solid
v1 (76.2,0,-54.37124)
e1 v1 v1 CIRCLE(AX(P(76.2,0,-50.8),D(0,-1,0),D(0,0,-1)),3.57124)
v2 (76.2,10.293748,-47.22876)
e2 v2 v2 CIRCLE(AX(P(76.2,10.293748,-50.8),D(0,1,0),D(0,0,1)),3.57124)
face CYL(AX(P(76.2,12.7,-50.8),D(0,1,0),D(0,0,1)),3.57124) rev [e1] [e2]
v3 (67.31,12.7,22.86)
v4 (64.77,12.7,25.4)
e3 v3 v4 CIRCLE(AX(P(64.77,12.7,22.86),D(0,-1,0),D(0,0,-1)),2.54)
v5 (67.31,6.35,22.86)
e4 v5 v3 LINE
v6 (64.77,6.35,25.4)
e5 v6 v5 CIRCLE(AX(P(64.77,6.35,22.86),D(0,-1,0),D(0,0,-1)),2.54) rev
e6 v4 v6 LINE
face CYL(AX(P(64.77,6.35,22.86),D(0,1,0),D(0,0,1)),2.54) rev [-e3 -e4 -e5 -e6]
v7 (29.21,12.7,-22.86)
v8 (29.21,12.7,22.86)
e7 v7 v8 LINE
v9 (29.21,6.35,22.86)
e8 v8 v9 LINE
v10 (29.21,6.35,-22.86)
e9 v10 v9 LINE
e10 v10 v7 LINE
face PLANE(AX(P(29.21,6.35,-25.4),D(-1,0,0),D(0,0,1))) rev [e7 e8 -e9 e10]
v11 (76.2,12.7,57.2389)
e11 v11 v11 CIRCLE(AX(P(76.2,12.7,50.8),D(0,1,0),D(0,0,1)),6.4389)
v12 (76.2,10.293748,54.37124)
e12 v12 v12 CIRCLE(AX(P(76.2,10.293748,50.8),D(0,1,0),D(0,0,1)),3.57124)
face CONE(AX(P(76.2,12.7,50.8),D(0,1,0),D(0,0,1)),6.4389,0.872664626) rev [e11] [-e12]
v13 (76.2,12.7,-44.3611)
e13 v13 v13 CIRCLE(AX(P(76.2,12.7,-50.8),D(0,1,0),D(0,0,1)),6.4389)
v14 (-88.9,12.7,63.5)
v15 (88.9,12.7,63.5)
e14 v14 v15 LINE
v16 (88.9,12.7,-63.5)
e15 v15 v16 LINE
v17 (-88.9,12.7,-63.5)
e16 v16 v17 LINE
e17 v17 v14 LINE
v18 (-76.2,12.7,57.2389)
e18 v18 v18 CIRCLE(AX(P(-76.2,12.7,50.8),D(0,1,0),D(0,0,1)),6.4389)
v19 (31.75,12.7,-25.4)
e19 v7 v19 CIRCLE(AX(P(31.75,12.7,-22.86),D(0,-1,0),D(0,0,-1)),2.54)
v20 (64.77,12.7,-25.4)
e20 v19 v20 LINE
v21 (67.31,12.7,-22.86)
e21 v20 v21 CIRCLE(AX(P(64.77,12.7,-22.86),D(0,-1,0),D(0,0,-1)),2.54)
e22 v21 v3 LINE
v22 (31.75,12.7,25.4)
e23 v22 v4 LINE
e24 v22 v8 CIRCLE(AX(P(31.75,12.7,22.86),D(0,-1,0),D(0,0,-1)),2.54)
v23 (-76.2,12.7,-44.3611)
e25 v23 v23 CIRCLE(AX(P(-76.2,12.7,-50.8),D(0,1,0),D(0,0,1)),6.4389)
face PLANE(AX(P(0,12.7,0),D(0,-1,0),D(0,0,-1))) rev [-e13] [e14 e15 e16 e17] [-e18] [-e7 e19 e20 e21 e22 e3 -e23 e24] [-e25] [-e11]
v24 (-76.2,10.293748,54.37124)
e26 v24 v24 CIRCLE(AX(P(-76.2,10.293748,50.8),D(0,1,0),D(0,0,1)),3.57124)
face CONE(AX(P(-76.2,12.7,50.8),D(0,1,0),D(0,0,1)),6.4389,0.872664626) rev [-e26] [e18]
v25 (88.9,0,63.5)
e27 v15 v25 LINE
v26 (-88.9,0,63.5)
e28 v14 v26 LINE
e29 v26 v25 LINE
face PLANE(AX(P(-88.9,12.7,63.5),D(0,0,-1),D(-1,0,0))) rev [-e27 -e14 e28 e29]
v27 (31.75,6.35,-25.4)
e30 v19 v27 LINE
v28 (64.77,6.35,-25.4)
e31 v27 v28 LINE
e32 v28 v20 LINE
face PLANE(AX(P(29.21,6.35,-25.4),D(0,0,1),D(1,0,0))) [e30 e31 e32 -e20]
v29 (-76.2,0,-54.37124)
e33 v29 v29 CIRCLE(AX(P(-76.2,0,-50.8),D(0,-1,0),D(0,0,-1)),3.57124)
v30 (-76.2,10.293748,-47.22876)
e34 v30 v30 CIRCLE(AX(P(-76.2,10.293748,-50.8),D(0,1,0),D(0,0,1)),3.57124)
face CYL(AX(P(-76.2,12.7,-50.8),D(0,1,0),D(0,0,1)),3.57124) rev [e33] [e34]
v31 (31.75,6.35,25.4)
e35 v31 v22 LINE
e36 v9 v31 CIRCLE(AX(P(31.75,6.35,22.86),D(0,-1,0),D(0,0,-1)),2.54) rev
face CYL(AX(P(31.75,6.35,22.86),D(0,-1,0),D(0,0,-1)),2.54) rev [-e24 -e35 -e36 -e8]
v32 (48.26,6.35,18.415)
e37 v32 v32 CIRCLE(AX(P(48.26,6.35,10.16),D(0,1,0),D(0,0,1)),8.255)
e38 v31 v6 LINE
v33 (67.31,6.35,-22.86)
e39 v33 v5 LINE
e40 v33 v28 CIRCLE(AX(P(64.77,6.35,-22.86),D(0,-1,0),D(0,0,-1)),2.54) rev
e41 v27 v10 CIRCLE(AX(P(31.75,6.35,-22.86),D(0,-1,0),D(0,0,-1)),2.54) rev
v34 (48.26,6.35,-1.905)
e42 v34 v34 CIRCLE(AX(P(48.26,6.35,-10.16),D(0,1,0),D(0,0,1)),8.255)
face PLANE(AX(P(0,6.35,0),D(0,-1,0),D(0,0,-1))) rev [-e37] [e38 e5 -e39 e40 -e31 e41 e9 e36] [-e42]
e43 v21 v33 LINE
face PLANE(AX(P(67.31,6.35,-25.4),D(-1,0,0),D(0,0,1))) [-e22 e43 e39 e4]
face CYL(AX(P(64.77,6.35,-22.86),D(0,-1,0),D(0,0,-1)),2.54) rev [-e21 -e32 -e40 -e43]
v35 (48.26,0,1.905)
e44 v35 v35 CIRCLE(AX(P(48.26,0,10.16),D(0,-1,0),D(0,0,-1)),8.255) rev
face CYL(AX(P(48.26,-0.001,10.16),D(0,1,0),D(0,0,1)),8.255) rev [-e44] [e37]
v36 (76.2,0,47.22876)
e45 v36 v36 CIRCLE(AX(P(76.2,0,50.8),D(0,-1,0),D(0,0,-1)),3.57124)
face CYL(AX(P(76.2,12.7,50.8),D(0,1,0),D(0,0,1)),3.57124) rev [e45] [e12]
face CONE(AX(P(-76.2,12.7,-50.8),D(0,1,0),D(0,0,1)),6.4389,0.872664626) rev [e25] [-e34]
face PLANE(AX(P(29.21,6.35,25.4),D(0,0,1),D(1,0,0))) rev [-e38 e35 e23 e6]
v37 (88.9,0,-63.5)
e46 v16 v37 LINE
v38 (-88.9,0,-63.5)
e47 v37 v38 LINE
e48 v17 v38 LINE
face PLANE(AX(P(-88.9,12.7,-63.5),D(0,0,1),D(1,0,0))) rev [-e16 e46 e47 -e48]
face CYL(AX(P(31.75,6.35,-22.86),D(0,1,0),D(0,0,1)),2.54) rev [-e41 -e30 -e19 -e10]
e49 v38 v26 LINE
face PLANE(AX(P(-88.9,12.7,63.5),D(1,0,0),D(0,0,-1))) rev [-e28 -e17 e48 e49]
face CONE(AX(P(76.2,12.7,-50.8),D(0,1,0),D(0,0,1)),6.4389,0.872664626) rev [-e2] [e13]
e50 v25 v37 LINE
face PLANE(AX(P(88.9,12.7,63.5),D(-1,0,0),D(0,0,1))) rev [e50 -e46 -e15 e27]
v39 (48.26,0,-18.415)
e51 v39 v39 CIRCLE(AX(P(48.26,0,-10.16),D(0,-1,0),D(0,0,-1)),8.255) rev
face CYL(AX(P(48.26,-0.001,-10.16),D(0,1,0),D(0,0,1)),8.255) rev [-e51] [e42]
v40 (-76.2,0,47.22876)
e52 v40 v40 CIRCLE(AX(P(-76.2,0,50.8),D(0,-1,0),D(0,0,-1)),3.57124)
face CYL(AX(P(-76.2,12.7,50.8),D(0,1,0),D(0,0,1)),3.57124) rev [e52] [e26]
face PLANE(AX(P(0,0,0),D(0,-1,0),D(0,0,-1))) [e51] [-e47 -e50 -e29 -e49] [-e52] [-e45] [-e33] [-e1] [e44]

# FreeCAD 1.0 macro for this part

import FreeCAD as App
import Part
import Sketcher
from FreeCAD import Vector
Q = App.Units.Quantity


def edges_at(feature, points):
    """Names of the edges that pass closest to the given points."""
    edges = feature.Shape.Edges
    near = lambda p: min(range(len(edges)), key=lambda i: edges[i].distToShape(Part.Vertex(*p))[0])
    return sorted({f"Edge{near(p) + 1}" for p in points})

doc = App.newDocument("Part")
body = doc.addObject("PartDesign::Body", "Body")

# Sketch on XZ plane
sketch1 = body.newObject("Sketcher::SketchObject", "Sketch")
sketch1.AttachmentSupport = (doc.getObject("XZ_Plane"), [""])
sketch1.MapMode = "FlatFace"
sketch1.addGeometry([
    Part.LineSegment(Vector(-88.9, -63.5, 0), Vector(-88.9, 63.5, 0)),
    Part.LineSegment(Vector(-88.9, 63.5, 0), Vector(88.9, 63.5, 0)),
    Part.LineSegment(Vector(88.9, 63.5, 0), Vector(88.9, -63.5, 0)),
    Part.LineSegment(Vector(88.9, -63.5, 0), Vector(-88.9, -63.5, 0)),
], False)
sketch1.addConstraint([
    Sketcher.Constraint("Coincident", 0, 2, 1, 1),
    Sketcher.Constraint("Coincident", 1, 2, 2, 1),
    Sketcher.Constraint("Coincident", 2, 2, 3, 1),
    Sketcher.Constraint("Coincident", 3, 2, 0, 1),
    Sketcher.Constraint("Vertical", 0),
    Sketcher.Constraint("Horizontal", 1),
    Sketcher.Constraint("Vertical", 2),
    Sketcher.Constraint("Horizontal", 3),
    Sketcher.Constraint("Symmetric", 0, 2, 2, 2, -1, 1),
    Sketcher.Constraint("DistanceX", 1, 1, 1, 2, Q("7 in")),
    Sketcher.Constraint("DistanceY", 0, 1, 0, 2, Q("5 in")),
])
pad1 = body.newObject("PartDesign::Pad", "Pad")
pad1.Profile = sketch1
pad1.Length = Q("0.5 in")
pad1.Reversed = True

# Sketch on XZ plane
sketch2 = body.newObject("Sketcher::SketchObject", "Sketch001")
sketch2.AttachmentSupport = (doc.getObject("XZ_Plane"), [""])
sketch2.MapMode = "FlatFace"
sketch2.AttachmentOffset = App.Placement(Vector(0, 0, -0.5 * 25.4), App.Rotation())
sketch2.addGeometry([
    Part.Circle(Vector(-76.2, 50.8, 0), Vector(0, 0, 1), 3.57124),
    Part.Circle(Vector(76.2, 50.8, 0), Vector(0, 0, 1), 3.57124),
    Part.Circle(Vector(76.2, -50.8, 0), Vector(0, 0, 1), 3.57124),
    Part.Circle(Vector(-76.2, -50.8, 0), Vector(0, 0, 1), 3.57124),
], False)
sketch2.addConstraint([
    Sketcher.Constraint("Equal", 0, 1),
    Sketcher.Constraint("Equal", 1, 2),
    Sketcher.Constraint("Equal", 2, 3),
    Sketcher.Constraint("Symmetric", 0, 3, 2, 3, -1, 1),
    Sketcher.Constraint("Symmetric", 1, 3, 3, 3, -1, 1),
    Sketcher.Constraint("Symmetric", 0, 3, 1, 3, -2),
    Sketcher.Constraint("DistanceX", 0, 3, -1, 1, Q("3 in")),
    Sketcher.Constraint("DistanceY", -1, 1, 0, 3, Q("2 in")),
    Sketcher.Constraint("Diameter", 0, Q("0.2812 in")),
])
doc.recompute()
hole = body.newObject("PartDesign::Hole", "Hole")
hole.Profile = sketch2
hole.ThreadType = "None"
hole.Diameter = Q("0.2812 in")
hole.DepthType = "ThroughAll"
hole.HoleCutType = "Countersink"
hole.HoleCutDiameter = Q("0.507 in")
hole.HoleCutCountersinkAngle = 100
hole.Reversed = True

# Sketch on XZ plane
sketch3 = body.newObject("Sketcher::SketchObject", "Sketch002")
sketch3.AttachmentSupport = (doc.getObject("XZ_Plane"), [""])
sketch3.MapMode = "FlatFace"
sketch3.AttachmentOffset = App.Placement(Vector(0, 0, -0.5 * 25.4), App.Rotation())
sketch3.addGeometry([
    Part.LineSegment(Vector(29.21, -25.4, 0), Vector(29.21, 25.4, 0)),
    Part.LineSegment(Vector(29.21, 25.4, 0), Vector(67.31, 25.4, 0)),
    Part.LineSegment(Vector(67.31, 25.4, 0), Vector(67.31, -25.4, 0)),
    Part.LineSegment(Vector(67.31, -25.4, 0), Vector(29.21, -25.4, 0)),
], False)
sketch3.addConstraint([
    Sketcher.Constraint("Coincident", 0, 2, 1, 1),
    Sketcher.Constraint("Coincident", 1, 2, 2, 1),
    Sketcher.Constraint("Coincident", 2, 2, 3, 1),
    Sketcher.Constraint("Coincident", 3, 2, 0, 1),
    Sketcher.Constraint("Vertical", 0),
    Sketcher.Constraint("Horizontal", 1),
    Sketcher.Constraint("Vertical", 2),
    Sketcher.Constraint("Horizontal", 3),
    Sketcher.Constraint("DistanceY", 0, 1, 0, 2, Q("2 in")),
    Sketcher.Constraint("DistanceX", 1, 1, 1, 2, Q("1.5 in")),
    Sketcher.Constraint("DistanceY", -1, 1, 0, 2, Q("1 in")),
    Sketcher.Constraint("DistanceX", -1, 1, 0, 2, Q("1.15 in")),
])
pocket1 = body.newObject("PartDesign::Pocket", "Pocket")
pocket1.Profile = sketch3
pocket1.Length = Q("0.25 in")
pocket1.Reversed = True

# Sketch on XZ plane
sketch4 = body.newObject("Sketcher::SketchObject", "Sketch003")
sketch4.AttachmentSupport = (doc.getObject("XZ_Plane"), [""])
sketch4.MapMode = "FlatFace"
sketch4.AttachmentOffset = App.Placement(Vector(0, 0, -0.25 * 25.4), App.Rotation())
sketch4.addGeometry(Part.Circle(Vector(48.26, -10.16, 0), Vector(0, 0, 1), 8.255), False)
sketch4.addConstraint([
    Sketcher.Constraint("Diameter", 0, Q("0.65 in")),
    Sketcher.Constraint("DistanceX", -1, 1, 0, 3, Q("1.9 in")),
    Sketcher.Constraint("DistanceY", 0, 3, -1, 1, Q("0.4 in")),
])
pocket2 = body.newObject("PartDesign::Pocket", "Pocket001")
pocket2.Profile = sketch4
pocket2.Type = "UpToFirst"
pocket2.Reversed = True

# Sketch on XZ plane
sketch5 = body.newObject("Sketcher::SketchObject", "Sketch004")
sketch5.AttachmentSupport = (doc.getObject("XZ_Plane"), [""])
sketch5.MapMode = "FlatFace"
sketch5.AttachmentOffset = App.Placement(Vector(0, 0, -0.25 * 25.4), App.Rotation())
sketch5.addGeometry(Part.Circle(Vector(48.26, 10.16, 0), Vector(0, 0, 1), 8.255), False)
sketch5.addConstraint([
    Sketcher.Constraint("Diameter", 0, Q("0.65 in")),
    Sketcher.Constraint("DistanceX", -1, 1, 0, 3, Q("1.9 in")),
    Sketcher.Constraint("DistanceY", -1, 1, 0, 3, Q("0.4 in")),
])
pocket3 = body.newObject("PartDesign::Pocket", "Pocket002")
pocket3.Profile = sketch5
pocket3.Type = "UpToFirst"
pocket3.Reversed = True
doc.recompute()

fillet = body.newObject("PartDesign::Fillet", "Fillet")
fillet.Base = (pocket3, edges_at(pocket3, [
    (29.21, 9.525, -25.4),
    (67.31, 9.525, -25.4),
    (67.31, 9.525, 25.4),
    (29.21, 9.525, 25.4),
]))
fillet.Radius = Q("0.1 in")

doc.recompute()
